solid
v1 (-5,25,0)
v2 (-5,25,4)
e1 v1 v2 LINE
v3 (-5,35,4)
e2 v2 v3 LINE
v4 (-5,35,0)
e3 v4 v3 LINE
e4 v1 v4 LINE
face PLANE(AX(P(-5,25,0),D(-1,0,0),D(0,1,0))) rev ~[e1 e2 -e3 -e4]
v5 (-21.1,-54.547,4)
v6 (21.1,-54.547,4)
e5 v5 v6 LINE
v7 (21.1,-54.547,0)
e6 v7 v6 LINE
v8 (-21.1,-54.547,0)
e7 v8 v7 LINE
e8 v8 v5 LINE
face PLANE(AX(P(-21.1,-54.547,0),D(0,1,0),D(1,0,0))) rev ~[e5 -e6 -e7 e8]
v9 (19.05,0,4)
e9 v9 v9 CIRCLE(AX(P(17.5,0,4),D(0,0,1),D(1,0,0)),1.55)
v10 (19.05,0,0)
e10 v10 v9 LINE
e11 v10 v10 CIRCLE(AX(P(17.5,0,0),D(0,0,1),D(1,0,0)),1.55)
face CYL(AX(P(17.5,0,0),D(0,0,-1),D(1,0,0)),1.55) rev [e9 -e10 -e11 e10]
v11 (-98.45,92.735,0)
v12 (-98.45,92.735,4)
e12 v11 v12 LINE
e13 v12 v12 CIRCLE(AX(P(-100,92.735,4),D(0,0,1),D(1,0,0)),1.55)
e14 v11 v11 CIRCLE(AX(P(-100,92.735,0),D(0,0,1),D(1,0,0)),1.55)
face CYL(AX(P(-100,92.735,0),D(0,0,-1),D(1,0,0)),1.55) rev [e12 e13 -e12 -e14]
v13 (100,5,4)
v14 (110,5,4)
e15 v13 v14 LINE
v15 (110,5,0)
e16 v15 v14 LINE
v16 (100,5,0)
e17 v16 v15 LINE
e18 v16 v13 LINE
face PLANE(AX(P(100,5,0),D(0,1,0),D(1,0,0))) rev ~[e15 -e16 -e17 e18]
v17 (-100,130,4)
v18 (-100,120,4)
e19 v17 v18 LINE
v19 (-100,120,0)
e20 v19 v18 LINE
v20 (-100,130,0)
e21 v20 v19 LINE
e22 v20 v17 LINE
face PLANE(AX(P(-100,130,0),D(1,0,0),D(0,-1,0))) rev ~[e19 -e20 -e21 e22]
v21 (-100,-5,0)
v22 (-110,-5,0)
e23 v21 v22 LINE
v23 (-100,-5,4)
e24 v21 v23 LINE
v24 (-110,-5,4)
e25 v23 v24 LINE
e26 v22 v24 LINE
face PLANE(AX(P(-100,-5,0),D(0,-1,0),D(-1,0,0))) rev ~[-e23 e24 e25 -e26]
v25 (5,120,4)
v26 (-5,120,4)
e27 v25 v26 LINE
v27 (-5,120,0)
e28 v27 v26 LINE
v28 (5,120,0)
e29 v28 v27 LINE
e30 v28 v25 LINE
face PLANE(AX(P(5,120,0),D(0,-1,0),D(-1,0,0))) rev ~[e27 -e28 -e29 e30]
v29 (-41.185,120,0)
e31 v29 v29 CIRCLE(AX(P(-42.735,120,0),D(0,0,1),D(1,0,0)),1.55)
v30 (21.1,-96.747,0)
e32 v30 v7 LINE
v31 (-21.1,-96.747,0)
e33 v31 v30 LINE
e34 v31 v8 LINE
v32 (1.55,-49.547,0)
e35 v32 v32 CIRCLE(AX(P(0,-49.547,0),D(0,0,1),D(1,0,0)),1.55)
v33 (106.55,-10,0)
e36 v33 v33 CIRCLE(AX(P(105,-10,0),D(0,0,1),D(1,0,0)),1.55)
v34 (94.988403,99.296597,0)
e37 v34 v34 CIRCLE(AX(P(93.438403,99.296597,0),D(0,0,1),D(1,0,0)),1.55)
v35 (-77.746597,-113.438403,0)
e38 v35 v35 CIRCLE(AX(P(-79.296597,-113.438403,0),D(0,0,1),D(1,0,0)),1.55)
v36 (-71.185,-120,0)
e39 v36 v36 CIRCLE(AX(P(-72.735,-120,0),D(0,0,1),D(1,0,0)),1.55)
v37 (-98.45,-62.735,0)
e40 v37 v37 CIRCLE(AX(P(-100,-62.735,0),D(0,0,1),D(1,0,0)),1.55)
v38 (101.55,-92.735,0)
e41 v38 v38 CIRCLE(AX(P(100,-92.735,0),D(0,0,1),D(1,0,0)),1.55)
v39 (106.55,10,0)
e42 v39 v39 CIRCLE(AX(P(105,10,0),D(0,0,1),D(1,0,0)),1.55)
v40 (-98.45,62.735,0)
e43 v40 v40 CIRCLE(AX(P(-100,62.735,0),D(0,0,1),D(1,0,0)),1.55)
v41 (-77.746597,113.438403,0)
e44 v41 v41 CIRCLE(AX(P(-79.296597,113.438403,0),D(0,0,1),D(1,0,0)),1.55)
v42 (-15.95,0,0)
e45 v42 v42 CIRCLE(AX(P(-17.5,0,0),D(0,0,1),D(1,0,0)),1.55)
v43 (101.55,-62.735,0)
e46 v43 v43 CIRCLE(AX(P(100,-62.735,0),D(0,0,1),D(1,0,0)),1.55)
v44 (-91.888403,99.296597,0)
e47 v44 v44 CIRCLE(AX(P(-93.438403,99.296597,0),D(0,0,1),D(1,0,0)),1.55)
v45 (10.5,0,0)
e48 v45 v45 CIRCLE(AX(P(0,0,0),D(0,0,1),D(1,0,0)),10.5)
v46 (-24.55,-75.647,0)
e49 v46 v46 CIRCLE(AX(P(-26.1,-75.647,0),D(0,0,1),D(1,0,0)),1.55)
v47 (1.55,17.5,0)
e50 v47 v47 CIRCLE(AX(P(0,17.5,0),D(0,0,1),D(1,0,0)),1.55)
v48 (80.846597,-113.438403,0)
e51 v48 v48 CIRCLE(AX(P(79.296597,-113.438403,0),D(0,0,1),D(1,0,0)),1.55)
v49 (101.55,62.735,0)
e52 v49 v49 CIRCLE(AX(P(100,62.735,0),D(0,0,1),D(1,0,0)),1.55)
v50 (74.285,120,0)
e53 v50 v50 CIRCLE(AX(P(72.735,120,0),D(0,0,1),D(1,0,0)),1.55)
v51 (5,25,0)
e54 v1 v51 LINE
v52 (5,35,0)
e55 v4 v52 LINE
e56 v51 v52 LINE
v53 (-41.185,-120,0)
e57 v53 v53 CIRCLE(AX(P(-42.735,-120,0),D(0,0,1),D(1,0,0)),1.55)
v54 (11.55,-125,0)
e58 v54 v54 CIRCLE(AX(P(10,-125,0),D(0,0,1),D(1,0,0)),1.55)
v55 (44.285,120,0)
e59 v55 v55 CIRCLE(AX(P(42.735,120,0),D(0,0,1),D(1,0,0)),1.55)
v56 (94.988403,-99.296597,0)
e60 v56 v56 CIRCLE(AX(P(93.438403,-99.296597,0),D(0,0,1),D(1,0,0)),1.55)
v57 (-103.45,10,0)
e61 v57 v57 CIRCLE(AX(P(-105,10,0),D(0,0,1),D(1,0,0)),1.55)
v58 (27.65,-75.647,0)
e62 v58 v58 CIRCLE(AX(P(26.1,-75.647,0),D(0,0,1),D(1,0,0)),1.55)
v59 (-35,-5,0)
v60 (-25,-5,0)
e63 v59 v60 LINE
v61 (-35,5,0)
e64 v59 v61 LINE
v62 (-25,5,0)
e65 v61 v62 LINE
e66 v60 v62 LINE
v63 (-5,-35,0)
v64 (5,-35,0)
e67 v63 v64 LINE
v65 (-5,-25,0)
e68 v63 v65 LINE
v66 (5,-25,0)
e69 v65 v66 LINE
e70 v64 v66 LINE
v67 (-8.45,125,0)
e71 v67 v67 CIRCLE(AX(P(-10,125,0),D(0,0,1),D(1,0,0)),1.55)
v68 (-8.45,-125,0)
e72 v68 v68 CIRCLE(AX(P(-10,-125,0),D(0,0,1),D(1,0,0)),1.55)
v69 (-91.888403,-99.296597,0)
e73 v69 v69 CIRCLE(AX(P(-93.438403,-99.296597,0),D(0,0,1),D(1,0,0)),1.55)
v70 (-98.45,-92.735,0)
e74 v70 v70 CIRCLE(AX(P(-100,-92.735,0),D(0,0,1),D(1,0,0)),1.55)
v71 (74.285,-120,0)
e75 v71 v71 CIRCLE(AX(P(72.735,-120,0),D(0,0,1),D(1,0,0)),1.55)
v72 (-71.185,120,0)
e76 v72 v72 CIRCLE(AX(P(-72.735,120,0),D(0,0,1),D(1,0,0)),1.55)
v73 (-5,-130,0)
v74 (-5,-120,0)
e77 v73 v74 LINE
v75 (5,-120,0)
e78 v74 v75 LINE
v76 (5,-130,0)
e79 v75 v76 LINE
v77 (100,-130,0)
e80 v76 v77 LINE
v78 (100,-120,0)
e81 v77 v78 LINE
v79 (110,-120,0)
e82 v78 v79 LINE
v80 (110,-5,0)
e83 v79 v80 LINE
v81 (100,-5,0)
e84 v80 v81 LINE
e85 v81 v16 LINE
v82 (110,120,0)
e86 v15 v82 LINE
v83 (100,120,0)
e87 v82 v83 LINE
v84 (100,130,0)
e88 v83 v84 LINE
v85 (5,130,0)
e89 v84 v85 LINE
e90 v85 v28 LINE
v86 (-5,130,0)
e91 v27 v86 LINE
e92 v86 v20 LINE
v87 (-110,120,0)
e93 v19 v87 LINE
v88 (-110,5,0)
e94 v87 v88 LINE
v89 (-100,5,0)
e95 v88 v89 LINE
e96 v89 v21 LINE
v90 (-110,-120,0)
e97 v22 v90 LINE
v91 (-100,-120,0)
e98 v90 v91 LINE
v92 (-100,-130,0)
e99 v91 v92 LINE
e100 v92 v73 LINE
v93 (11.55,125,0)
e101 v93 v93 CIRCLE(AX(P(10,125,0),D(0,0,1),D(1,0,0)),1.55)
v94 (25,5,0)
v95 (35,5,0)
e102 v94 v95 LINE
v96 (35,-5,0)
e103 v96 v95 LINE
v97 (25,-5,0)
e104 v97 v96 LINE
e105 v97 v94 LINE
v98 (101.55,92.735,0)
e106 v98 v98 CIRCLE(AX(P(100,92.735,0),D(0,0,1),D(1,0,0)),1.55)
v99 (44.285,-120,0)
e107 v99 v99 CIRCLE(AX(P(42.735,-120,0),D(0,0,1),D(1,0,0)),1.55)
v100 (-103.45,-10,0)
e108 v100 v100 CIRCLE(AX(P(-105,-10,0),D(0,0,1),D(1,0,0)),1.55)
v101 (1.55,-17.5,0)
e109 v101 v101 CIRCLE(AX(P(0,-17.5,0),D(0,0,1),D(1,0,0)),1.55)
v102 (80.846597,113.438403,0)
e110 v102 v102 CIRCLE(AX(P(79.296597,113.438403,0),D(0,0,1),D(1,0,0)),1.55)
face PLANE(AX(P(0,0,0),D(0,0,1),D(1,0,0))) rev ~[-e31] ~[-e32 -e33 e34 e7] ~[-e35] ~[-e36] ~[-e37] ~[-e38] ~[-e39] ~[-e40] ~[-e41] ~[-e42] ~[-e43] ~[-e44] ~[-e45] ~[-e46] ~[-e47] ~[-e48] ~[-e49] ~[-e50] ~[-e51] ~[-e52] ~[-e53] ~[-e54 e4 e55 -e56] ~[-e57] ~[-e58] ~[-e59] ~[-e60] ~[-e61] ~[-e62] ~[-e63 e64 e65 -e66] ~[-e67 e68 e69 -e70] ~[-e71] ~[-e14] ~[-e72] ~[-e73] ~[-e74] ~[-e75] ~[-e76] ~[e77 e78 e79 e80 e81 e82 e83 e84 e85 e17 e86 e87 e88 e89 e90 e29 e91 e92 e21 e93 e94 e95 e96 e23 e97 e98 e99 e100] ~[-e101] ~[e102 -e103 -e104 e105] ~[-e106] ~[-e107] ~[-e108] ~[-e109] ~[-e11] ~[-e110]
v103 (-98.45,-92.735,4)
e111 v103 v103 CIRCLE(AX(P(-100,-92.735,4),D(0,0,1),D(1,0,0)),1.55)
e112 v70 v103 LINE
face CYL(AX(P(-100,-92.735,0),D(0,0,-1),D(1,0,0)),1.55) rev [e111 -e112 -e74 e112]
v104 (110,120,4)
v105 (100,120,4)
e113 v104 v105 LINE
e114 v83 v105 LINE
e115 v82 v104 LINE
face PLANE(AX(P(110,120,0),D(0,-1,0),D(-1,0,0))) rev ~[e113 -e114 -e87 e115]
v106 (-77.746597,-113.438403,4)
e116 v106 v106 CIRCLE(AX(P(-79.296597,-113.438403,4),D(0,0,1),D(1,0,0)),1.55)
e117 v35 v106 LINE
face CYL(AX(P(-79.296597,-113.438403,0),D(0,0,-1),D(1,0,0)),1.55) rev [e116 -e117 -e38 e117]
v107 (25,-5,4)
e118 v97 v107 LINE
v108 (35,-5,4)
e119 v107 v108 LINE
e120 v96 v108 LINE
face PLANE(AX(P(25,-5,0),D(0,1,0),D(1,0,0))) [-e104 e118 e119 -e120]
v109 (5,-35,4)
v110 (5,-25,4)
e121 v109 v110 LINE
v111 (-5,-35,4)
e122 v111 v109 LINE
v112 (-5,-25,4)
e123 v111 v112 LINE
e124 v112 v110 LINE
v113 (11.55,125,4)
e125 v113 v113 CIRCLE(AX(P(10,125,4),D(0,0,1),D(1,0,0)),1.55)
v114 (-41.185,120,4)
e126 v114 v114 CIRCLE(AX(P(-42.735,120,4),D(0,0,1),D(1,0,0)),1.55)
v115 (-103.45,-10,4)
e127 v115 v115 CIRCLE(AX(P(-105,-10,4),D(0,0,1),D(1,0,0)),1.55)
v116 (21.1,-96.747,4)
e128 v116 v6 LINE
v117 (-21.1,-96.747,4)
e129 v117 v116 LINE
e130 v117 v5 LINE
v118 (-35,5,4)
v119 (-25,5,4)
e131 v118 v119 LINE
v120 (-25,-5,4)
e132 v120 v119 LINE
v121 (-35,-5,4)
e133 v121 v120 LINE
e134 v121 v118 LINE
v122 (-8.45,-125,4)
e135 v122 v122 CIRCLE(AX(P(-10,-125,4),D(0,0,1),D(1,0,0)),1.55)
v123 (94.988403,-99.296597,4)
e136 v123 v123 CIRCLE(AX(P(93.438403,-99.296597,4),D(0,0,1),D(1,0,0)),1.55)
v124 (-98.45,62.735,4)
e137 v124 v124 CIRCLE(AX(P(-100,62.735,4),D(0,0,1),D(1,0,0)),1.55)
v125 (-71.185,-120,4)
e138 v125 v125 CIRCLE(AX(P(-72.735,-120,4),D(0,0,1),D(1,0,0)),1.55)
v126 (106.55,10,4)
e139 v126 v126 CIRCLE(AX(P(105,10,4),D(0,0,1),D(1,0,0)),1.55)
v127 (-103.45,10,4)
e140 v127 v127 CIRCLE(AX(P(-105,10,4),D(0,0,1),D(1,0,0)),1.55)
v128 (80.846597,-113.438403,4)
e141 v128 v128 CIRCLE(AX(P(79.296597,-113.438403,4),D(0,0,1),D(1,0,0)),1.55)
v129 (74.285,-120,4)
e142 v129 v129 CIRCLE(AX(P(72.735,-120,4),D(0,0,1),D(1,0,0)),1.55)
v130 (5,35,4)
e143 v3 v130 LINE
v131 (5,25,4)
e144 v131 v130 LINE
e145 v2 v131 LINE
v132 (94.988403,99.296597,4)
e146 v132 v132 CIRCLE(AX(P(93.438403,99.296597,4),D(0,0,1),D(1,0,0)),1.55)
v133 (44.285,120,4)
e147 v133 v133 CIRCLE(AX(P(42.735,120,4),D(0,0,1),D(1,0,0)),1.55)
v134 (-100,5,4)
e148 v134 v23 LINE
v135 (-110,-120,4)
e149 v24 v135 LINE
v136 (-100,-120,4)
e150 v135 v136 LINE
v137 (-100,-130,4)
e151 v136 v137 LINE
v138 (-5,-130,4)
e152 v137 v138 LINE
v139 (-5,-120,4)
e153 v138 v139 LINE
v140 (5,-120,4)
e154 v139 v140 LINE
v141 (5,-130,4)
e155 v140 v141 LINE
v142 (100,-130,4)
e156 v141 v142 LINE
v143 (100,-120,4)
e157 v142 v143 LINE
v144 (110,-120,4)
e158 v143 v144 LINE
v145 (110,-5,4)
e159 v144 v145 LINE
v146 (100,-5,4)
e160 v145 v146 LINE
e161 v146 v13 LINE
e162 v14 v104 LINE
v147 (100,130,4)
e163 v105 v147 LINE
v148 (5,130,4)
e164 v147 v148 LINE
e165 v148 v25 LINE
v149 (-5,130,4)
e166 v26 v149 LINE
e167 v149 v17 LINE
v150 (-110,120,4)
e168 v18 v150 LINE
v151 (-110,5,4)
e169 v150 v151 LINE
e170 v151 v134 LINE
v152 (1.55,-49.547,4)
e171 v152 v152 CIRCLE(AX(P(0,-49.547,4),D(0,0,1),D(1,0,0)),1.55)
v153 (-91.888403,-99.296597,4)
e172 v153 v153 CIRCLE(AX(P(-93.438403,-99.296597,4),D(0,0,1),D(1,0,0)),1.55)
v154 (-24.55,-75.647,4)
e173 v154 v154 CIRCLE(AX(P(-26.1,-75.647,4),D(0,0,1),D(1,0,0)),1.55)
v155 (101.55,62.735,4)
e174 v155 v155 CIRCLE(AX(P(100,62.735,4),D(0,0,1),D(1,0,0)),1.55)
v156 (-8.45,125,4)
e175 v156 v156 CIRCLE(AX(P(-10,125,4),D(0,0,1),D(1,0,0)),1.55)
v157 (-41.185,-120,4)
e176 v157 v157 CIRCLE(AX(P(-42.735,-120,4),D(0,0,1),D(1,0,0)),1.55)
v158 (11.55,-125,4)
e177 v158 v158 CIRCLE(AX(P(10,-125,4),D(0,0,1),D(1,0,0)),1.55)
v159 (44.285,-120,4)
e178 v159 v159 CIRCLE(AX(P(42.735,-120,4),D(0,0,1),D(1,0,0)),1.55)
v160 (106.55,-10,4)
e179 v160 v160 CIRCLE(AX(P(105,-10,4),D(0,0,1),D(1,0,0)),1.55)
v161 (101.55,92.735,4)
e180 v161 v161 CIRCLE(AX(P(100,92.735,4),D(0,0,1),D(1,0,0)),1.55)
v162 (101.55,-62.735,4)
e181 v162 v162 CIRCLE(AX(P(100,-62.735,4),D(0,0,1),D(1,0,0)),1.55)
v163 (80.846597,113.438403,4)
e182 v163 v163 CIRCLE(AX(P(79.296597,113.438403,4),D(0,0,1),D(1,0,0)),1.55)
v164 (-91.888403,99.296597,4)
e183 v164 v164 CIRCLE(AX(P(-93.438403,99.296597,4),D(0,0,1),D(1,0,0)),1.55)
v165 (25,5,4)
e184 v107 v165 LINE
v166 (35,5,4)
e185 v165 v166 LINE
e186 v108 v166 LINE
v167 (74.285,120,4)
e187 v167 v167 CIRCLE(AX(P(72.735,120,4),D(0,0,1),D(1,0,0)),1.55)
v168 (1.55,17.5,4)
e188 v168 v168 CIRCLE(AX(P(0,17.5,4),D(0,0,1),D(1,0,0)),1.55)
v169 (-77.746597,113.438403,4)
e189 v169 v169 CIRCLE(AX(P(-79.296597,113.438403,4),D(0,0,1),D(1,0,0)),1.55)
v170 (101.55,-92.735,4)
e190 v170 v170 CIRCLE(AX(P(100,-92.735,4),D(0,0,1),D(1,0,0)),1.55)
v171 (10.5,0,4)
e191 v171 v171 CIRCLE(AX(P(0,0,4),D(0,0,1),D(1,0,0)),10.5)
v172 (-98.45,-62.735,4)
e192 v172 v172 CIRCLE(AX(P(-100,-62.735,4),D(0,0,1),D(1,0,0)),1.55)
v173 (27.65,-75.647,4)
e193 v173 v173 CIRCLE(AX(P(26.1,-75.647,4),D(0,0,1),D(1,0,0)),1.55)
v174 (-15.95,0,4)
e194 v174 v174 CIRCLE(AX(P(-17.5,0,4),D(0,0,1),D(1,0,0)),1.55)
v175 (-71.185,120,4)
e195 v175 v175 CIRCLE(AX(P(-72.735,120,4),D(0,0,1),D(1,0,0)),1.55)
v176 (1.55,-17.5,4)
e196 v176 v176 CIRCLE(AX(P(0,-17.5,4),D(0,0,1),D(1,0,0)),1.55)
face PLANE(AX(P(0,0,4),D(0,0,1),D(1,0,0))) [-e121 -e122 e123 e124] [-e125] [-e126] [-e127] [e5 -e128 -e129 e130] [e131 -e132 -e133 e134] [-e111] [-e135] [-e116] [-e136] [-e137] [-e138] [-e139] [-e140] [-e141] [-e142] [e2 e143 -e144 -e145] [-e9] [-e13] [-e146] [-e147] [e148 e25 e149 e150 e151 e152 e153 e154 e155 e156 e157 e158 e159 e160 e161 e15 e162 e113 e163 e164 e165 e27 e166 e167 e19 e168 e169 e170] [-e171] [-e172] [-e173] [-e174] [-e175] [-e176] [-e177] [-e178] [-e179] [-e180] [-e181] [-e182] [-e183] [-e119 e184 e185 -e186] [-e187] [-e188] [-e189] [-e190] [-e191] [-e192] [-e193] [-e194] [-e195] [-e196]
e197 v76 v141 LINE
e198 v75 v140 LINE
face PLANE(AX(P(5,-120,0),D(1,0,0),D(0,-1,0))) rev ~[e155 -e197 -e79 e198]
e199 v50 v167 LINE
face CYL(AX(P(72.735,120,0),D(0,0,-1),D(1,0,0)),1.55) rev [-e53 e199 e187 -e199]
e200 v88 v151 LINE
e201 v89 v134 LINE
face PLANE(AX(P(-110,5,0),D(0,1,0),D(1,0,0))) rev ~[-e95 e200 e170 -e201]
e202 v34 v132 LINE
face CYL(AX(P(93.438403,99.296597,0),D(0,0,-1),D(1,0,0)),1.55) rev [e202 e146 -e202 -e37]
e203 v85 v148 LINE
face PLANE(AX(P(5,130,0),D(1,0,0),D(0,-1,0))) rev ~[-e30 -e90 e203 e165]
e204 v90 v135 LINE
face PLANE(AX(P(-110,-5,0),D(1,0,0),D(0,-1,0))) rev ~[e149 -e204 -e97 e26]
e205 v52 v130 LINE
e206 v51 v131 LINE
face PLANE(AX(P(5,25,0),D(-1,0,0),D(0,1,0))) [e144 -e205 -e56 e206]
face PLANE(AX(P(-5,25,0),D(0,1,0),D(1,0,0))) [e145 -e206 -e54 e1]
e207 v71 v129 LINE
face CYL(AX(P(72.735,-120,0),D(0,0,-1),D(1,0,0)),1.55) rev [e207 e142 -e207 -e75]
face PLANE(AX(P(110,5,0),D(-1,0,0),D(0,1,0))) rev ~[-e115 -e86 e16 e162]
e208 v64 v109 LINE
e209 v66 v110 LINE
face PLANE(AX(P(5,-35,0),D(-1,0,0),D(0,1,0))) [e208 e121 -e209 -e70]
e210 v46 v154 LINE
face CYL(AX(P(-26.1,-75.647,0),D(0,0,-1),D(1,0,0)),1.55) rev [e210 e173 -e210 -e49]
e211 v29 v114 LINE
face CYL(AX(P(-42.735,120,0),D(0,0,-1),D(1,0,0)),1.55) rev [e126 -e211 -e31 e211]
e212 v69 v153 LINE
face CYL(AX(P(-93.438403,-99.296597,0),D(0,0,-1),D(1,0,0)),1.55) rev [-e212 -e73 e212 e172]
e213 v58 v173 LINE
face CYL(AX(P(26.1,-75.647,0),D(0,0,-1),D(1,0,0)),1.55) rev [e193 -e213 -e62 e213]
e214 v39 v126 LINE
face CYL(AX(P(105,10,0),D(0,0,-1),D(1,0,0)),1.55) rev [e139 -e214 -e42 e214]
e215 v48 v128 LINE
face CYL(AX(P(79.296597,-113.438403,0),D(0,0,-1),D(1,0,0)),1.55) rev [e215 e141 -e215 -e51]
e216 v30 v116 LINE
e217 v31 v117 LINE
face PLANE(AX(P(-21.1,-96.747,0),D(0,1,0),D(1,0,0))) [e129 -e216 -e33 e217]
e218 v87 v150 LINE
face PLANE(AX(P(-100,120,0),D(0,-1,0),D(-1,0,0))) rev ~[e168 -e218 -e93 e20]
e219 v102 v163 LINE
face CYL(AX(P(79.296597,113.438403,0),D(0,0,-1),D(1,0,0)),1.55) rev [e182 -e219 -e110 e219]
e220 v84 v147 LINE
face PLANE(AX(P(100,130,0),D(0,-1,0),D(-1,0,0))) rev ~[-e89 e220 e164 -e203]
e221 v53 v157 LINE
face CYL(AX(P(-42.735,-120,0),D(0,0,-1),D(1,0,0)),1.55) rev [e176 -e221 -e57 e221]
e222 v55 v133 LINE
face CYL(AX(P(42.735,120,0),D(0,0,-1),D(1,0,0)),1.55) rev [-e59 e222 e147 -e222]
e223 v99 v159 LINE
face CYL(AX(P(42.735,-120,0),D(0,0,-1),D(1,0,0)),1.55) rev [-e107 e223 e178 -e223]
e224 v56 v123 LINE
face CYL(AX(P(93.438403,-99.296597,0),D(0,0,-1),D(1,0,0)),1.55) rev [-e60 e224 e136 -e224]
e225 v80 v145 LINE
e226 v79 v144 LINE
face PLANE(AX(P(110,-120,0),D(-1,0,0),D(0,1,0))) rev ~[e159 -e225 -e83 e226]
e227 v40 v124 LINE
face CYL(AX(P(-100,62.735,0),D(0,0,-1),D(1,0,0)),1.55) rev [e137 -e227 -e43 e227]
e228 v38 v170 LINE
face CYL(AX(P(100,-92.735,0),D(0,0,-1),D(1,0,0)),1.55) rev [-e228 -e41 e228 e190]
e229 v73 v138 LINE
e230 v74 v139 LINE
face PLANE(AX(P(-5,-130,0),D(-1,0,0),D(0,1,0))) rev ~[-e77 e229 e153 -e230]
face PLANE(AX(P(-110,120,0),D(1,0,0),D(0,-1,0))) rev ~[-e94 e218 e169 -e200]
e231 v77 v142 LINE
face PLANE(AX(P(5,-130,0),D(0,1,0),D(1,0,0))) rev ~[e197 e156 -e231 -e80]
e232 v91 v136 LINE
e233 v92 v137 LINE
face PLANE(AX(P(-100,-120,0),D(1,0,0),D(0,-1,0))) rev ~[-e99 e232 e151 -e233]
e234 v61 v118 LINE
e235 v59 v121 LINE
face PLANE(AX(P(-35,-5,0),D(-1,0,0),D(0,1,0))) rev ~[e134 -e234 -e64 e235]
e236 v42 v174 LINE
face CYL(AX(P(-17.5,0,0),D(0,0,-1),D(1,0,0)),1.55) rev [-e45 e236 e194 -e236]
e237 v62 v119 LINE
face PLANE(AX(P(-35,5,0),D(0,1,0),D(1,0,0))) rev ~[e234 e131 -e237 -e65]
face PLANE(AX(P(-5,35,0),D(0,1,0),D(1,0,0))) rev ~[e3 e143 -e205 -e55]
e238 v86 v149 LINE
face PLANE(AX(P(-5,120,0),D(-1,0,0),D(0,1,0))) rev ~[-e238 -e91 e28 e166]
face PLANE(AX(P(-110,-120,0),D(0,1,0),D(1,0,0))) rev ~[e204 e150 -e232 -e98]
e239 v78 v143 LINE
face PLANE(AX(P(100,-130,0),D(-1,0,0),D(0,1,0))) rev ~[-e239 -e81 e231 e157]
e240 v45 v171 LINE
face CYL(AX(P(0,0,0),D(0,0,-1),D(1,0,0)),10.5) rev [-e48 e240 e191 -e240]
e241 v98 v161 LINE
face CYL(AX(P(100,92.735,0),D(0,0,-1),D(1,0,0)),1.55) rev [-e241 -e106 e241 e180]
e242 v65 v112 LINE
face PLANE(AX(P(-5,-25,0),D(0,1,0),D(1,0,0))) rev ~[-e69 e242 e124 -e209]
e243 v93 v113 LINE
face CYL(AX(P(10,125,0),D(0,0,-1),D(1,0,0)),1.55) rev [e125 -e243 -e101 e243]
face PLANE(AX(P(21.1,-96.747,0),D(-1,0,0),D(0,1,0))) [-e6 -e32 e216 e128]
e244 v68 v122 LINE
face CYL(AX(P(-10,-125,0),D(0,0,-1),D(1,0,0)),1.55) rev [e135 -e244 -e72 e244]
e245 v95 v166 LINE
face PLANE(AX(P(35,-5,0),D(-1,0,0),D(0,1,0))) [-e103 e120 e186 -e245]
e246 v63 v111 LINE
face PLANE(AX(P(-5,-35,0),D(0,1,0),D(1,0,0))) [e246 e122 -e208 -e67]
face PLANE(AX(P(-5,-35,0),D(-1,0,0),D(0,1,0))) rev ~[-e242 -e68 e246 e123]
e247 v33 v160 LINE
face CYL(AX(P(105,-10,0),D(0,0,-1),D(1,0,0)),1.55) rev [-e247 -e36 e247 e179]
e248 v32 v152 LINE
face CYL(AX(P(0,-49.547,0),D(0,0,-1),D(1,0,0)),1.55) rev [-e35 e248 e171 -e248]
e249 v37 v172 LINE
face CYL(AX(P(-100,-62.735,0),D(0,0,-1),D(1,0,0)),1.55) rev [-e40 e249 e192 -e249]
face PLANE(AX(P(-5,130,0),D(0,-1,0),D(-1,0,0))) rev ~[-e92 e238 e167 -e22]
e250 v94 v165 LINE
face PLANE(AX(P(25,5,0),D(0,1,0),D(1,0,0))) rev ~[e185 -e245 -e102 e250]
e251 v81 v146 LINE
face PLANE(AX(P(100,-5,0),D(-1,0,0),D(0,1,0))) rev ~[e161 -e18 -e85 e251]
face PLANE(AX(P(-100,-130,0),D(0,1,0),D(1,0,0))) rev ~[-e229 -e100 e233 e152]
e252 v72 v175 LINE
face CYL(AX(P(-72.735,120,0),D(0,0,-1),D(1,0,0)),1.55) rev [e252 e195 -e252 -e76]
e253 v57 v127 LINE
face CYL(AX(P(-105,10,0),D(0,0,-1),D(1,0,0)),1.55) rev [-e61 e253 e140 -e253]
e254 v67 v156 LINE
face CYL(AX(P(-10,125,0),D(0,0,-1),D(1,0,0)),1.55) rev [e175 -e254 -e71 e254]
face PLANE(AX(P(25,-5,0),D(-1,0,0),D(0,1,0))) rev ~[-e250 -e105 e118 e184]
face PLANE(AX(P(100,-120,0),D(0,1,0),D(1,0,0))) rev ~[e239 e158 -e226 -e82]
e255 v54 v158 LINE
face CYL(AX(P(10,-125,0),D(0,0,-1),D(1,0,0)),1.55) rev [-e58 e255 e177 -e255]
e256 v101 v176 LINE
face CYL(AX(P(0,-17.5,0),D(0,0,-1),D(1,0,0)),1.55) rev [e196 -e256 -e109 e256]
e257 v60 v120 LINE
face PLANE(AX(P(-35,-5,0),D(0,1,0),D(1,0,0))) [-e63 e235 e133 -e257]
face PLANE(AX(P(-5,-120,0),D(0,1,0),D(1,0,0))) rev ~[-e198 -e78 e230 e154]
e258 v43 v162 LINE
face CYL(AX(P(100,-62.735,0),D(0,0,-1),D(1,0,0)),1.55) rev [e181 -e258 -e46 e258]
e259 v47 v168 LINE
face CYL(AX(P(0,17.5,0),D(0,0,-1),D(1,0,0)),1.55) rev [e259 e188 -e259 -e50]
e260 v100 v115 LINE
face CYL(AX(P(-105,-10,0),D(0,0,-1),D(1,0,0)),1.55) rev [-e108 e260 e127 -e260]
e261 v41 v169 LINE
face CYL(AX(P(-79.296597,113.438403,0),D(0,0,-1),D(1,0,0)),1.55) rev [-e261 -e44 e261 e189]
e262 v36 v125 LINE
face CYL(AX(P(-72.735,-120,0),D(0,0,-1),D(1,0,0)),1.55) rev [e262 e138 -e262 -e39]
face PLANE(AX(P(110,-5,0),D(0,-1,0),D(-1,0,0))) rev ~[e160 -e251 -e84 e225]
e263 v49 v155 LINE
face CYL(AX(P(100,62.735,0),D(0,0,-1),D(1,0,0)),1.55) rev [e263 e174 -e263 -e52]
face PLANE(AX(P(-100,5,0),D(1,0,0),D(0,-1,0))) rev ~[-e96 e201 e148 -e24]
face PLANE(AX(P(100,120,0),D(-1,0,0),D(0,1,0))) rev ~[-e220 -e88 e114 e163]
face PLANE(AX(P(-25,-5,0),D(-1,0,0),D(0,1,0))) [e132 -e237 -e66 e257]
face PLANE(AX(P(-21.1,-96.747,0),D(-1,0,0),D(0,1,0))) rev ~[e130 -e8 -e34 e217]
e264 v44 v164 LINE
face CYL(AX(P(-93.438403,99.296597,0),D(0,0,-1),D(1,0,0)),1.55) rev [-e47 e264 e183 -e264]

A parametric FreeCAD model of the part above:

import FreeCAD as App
import Part
import Sketcher
from FreeCAD import Vector

doc = App.newDocument("Part")
body = doc.addObject("PartDesign::Body", "Body")

# Sketch on XY plane
sketch1 = doc.addObject("Sketcher::SketchObject", "Sketch")
body.addObject(sketch1)
sketch1.AttachmentSupport = (doc.XY_Plane, [""])
sketch1.MapMode = "FlatFace"
sketch1.addGeometry(Part.LineSegment(Vector(-100, 120, 0), Vector(-110, 120, 0)), False)
sketch1.addGeometry(Part.LineSegment(Vector(-110, 120, 0), Vector(-110, 5, 0)), False)
sketch1.addGeometry(Part.LineSegment(Vector(-110, 5, 0), Vector(-100, 5, 0)), False)
sketch1.addGeometry(Part.LineSegment(Vector(-100, 5, 0), Vector(-100, -5, 0)), False)
sketch1.addGeometry(Part.LineSegment(Vector(-100, -5, 0), Vector(-110, -5, 0)), False)
sketch1.addGeometry(Part.LineSegment(Vector(-110, -5, 0), Vector(-110, -120, 0)), False)
sketch1.addGeometry(Part.LineSegment(Vector(-110, -120, 0), Vector(-100, -120, 0)), False)
sketch1.addGeometry(Part.LineSegment(Vector(-100, -120, 0), Vector(-100, -130, 0)), False)
sketch1.addGeometry(Part.LineSegment(Vector(-100, -130, 0), Vector(-5, -130, 0)), False)
sketch1.addGeometry(Part.LineSegment(Vector(-5, -130, 0), Vector(-5, -120, 0)), False)
sketch1.addGeometry(Part.LineSegment(Vector(-5, -120, 0), Vector(5, -120, 0)), False)
sketch1.addGeometry(Part.LineSegment(Vector(5, -120, 0), Vector(5, -130, 0)), False)
sketch1.addGeometry(Part.LineSegment(Vector(5, -130, 0), Vector(100, -130, 0)), False)
sketch1.addGeometry(Part.LineSegment(Vector(100, -130, 0), Vector(100, -120, 0)), False)
sketch1.addGeometry(Part.LineSegment(Vector(100, -120, 0), Vector(110, -120, 0)), False)
sketch1.addGeometry(Part.LineSegment(Vector(110, -120, 0), Vector(110, -5, 0)), False)
sketch1.addGeometry(Part.LineSegment(Vector(110, -5, 0), Vector(100, -5, 0)), False)
sketch1.addGeometry(Part.LineSegment(Vector(100, -5, 0), Vector(100, 5, 0)), False)
sketch1.addGeometry(Part.LineSegment(Vector(100, 5, 0), Vector(110, 5, 0)), False)
sketch1.addGeometry(Part.LineSegment(Vector(110, 5, 0), Vector(110, 120, 0)), False)
sketch1.addGeometry(Part.LineSegment(Vector(110, 120, 0), Vector(100, 120, 0)), False)
sketch1.addGeometry(Part.LineSegment(Vector(100, 120, 0), Vector(100, 130, 0)), False)
sketch1.addGeometry(Part.LineSegment(Vector(100, 130, 0), Vector(5, 130, 0)), False)
sketch1.addGeometry(Part.LineSegment(Vector(5, 130, 0), Vector(5, 120, 0)), False)
sketch1.addGeometry(Part.LineSegment(Vector(5, 120, 0), Vector(-5, 120, 0)), False)
sketch1.addGeometry(Part.LineSegment(Vector(-5, 120, 0), Vector(-5, 130, 0)), False)
sketch1.addGeometry(Part.LineSegment(Vector(-5, 130, 0), Vector(-100, 130, 0)), False)
sketch1.addGeometry(Part.LineSegment(Vector(-100, 130, 0), Vector(-100, 120, 0)), False)
sketch1.addGeometry(Part.Circle(Vector(-93.4, -99.3, 0), Vector(0, 0, 1), 1.6), False)
sketch1.addGeometry(Part.Circle(Vector(-72.7, -120, 0), Vector(0, 0, 1), 1.6), False)
sketch1.addGeometry(Part.Circle(Vector(-79.3, -113.4, 0), Vector(0, 0, 1), 1.6), False)
sketch1.addGeometry(Part.Circle(Vector(-100, -92.7, 0), Vector(0, 0, 1), 1.6), False)
sketch1.addGeometry(Part.Circle(Vector(-42.7, -120, 0), Vector(0, 0, 1), 1.6), False)
sketch1.addGeometry(Part.Circle(Vector(-10, -125, 0), Vector(0, 0, 1), 1.6), False)
sketch1.addGeometry(Part.Circle(Vector(-26.1, -75.6, 0), Vector(0, 0, 1), 1.6), False)
sketch1.addGeometry(Part.Circle(Vector(-100, -62.7, 0), Vector(0, 0, 1), 1.6), False)
sketch1.addGeometry(Part.Circle(Vector(-105, -10, 0), Vector(0, 0, 1), 1.6), False)
sketch1.addGeometry(Part.Circle(Vector(10, -125, 0), Vector(0, 0, 1), 1.6), False)
sketch1.addGeometry(Part.Circle(Vector(42.7, -120, 0), Vector(0, 0, 1), 1.6), False)
sketch1.addGeometry(Part.LineSegment(Vector(21.1, -96.7, 0), Vector(-21.1, -96.7, 0)), False)
sketch1.addGeometry(Part.LineSegment(Vector(-21.1, -96.7, 0), Vector(-21.1, -54.5, 0)), False)
sketch1.addGeometry(Part.LineSegment(Vector(-21.1, -54.5, 0), Vector(21.1, -54.5, 0)), False)
sketch1.addGeometry(Part.LineSegment(Vector(21.1, -54.5, 0), Vector(21.1, -96.7, 0)), False)
sketch1.addGeometry(Part.Circle(Vector(26.1, -75.6, 0), Vector(0, 0, 1), 1.6), False)
sketch1.addGeometry(Part.Circle(Vector(72.7, -120, 0), Vector(0, 0, 1), 1.6), False)
sketch1.addGeometry(Part.Circle(Vector(79.3, -113.4, 0), Vector(0, 0, 1), 1.6), False)
sketch1.addGeometry(Part.Circle(Vector(93.4, -99.3, 0), Vector(0, 0, 1), 1.6), False)
sketch1.addGeometry(Part.Circle(Vector(100, -92.7, 0), Vector(0, 0, 1), 1.6), False)
sketch1.addGeometry(Part.Circle(Vector(0, -49.5, 0), Vector(0, 0, 1), 1.6), False)
sketch1.addGeometry(Part.LineSegment(Vector(5, -35, 0), Vector(-5, -35, 0)), False)
sketch1.addGeometry(Part.LineSegment(Vector(-5, -35, 0), Vector(-5, -25, 0)), False)
sketch1.addGeometry(Part.LineSegment(Vector(-5, -25, 0), Vector(5, -25, 0)), False)
sketch1.addGeometry(Part.LineSegment(Vector(5, -25, 0), Vector(5, -35, 0)), False)
sketch1.addGeometry(Part.Circle(Vector(0, -17.5, 0), Vector(0, 0, 1), 1.6), False)
sketch1.addGeometry(Part.Circle(Vector(100, -62.7, 0), Vector(0, 0, 1), 1.6), False)
sketch1.addGeometry(Part.Circle(Vector(105, -10, 0), Vector(0, 0, 1), 1.6), False)
sketch1.addGeometry(Part.Circle(Vector(-105, 10, 0), Vector(0, 0, 1), 1.6), False)
sketch1.addGeometry(Part.Circle(Vector(-100, 62.7, 0), Vector(0, 0, 1), 1.6), False)
sketch1.addGeometry(Part.LineSegment(Vector(-25, -5, 0), Vector(-35, -5, 0)), False)
sketch1.addGeometry(Part.LineSegment(Vector(-35, -5, 0), Vector(-35, 5, 0)), False)
sketch1.addGeometry(Part.LineSegment(Vector(-35, 5, 0), Vector(-25, 5, 0)), False)
sketch1.addGeometry(Part.LineSegment(Vector(-25, 5, 0), Vector(-25, -5, 0)), False)
sketch1.addGeometry(Part.Circle(Vector(-17.5, 0, 0), Vector(0, 0, 1), 1.6), False)
sketch1.addGeometry(Part.Circle(Vector(-100, 92.7, 0), Vector(0, 0, 1), 1.6), False)
sketch1.addGeometry(Part.Circle(Vector(-93.4, 99.3, 0), Vector(0, 0, 1), 1.6), False)
sketch1.addGeometry(Part.Circle(Vector(-79.3, 113.4, 0), Vector(0, 0, 1), 1.6), False)
sketch1.addGeometry(Part.Circle(Vector(-72.7, 120, 0), Vector(0, 0, 1), 1.6), False)
sketch1.addGeometry(Part.Circle(Vector(-42.7, 120, 0), Vector(0, 0, 1), 1.6), False)
sketch1.addGeometry(Part.Circle(Vector(-10, 125, 0), Vector(0, 0, 1), 1.6), False)
sketch1.addGeometry(Part.Circle(Vector(0, 0, 0), Vector(0, 0, 1), 10.5), False)
sketch1.addGeometry(Part.Circle(Vector(17.5, 0, 0), Vector(0, 0, 1), 1.6), False)
sketch1.addGeometry(Part.Circle(Vector(0, 17.5, 0), Vector(0, 0, 1), 1.6), False)
sketch1.addGeometry(Part.LineSegment(Vector(5, 25, 0), Vector(-5, 25, 0)), False)
sketch1.addGeometry(Part.LineSegment(Vector(-5, 25, 0), Vector(-5, 35, 0)), False)
sketch1.addGeometry(Part.LineSegment(Vector(-5, 35, 0), Vector(5, 35, 0)), False)
sketch1.addGeometry(Part.LineSegment(Vector(5, 35, 0), Vector(5, 25, 0)), False)
sketch1.addGeometry(Part.LineSegment(Vector(35, -5, 0), Vector(25, -5, 0)), False)
sketch1.addGeometry(Part.LineSegment(Vector(25, -5, 0), Vector(25, 5, 0)), False)
sketch1.addGeometry(Part.LineSegment(Vector(25, 5, 0), Vector(35, 5, 0)), False)
sketch1.addGeometry(Part.LineSegment(Vector(35, 5, 0), Vector(35, -5, 0)), False)
sketch1.addGeometry(Part.Circle(Vector(105, 10, 0), Vector(0, 0, 1), 1.6), False)
sketch1.addGeometry(Part.Circle(Vector(100, 62.7, 0), Vector(0, 0, 1), 1.6), False)
sketch1.addGeometry(Part.Circle(Vector(10, 125, 0), Vector(0, 0, 1), 1.6), False)
sketch1.addGeometry(Part.Circle(Vector(42.7, 120, 0), Vector(0, 0, 1), 1.6), False)
sketch1.addGeometry(Part.Circle(Vector(100, 92.7, 0), Vector(0, 0, 1), 1.6), False)
sketch1.addGeometry(Part.Circle(Vector(79.3, 113.4, 0), Vector(0, 0, 1), 1.6), False)
sketch1.addGeometry(Part.Circle(Vector(72.7, 120, 0), Vector(0, 0, 1), 1.6), False)
sketch1.addGeometry(Part.Circle(Vector(93.4, 99.3, 0), Vector(0, 0, 1), 1.6), False)
sketch1.addConstraint(Sketcher.Constraint("Coincident", 0, 2, 1, 1))
sketch1.addConstraint(Sketcher.Constraint("Coincident", 1, 2, 2, 1))
sketch1.addConstraint(Sketcher.Constraint("Coincident", 2, 2, 3, 1))
sketch1.addConstraint(Sketcher.Constraint("Coincident", 3, 2, 4, 1))
sketch1.addConstraint(Sketcher.Constraint("Coincident", 4, 2, 5, 1))
sketch1.addConstraint(Sketcher.Constraint("Coincident", 5, 2, 6, 1))
sketch1.addConstraint(Sketcher.Constraint("Coincident", 6, 2, 7, 1))
sketch1.addConstraint(Sketcher.Constraint("Coincident", 7, 2, 8, 1))
sketch1.addConstraint(Sketcher.Constraint("Coincident", 8, 2, 9, 1))
sketch1.addConstraint(Sketcher.Constraint("Coincident", 9, 2, 10, 1))
sketch1.addConstraint(Sketcher.Constraint("Coincident", 10, 2, 11, 1))
sketch1.addConstraint(Sketcher.Constraint("Coincident", 11, 2, 12, 1))
sketch1.addConstraint(Sketcher.Constraint("Coincident", 12, 2, 13, 1))
sketch1.addConstraint(Sketcher.Constraint("Coincident", 13, 2, 14, 1))
sketch1.addConstraint(Sketcher.Constraint("Coincident", 14, 2, 15, 1))
sketch1.addConstraint(Sketcher.Constraint("Coincident", 15, 2, 16, 1))
sketch1.addConstraint(Sketcher.Constraint("Coincident", 16, 2, 17, 1))
sketch1.addConstraint(Sketcher.Constraint("Coincident", 17, 2, 18, 1))
sketch1.addConstraint(Sketcher.Constraint("Coincident", 18, 2, 19, 1))
sketch1.addConstraint(Sketcher.Constraint("Coincident", 19, 2, 20, 1))
sketch1.addConstraint(Sketcher.Constraint("Coincident", 20, 2, 21, 1))
sketch1.addConstraint(Sketcher.Constraint("Coincident", 21, 2, 22, 1))
sketch1.addConstraint(Sketcher.Constraint("Coincident", 22, 2, 23, 1))
sketch1.addConstraint(Sketcher.Constraint("Coincident", 23, 2, 24, 1))
sketch1.addConstraint(Sketcher.Constraint("Coincident", 24, 2, 25, 1))
sketch1.addConstraint(Sketcher.Constraint("Coincident", 25, 2, 26, 1))
sketch1.addConstraint(Sketcher.Constraint("Coincident", 26, 2, 27, 1))
sketch1.addConstraint(Sketcher.Constraint("Coincident", 27, 2, 0, 1))
sketch1.addConstraint(Sketcher.Constraint("Coincident", 39, 2, 40, 1))
sketch1.addConstraint(Sketcher.Constraint("Coincident", 40, 2, 41, 1))
sketch1.addConstraint(Sketcher.Constraint("Coincident", 41, 2, 42, 1))
sketch1.addConstraint(Sketcher.Constraint("Coincident", 42, 2, 39, 1))
sketch1.addConstraint(Sketcher.Constraint("Coincident", 49, 2, 50, 1))
sketch1.addConstraint(Sketcher.Constraint("Coincident", 50, 2, 51, 1))
sketch1.addConstraint(Sketcher.Constraint("Coincident", 51, 2, 52, 1))
sketch1.addConstraint(Sketcher.Constraint("Coincident", 52, 2, 49, 1))
sketch1.addConstraint(Sketcher.Constraint("Coincident", 58, 2, 59, 1))
sketch1.addConstraint(Sketcher.Constraint("Coincident", 59, 2, 60, 1))
sketch1.addConstraint(Sketcher.Constraint("Coincident", 60, 2, 61, 1))
sketch1.addConstraint(Sketcher.Constraint("Coincident", 61, 2, 58, 1))
sketch1.addConstraint(Sketcher.Constraint("Coincident", 72, 2, 73, 1))
sketch1.addConstraint(Sketcher.Constraint("Coincident", 73, 2, 74, 1))
sketch1.addConstraint(Sketcher.Constraint("Coincident", 74, 2, 75, 1))
sketch1.addConstraint(Sketcher.Constraint("Coincident", 75, 2, 72, 1))
sketch1.addConstraint(Sketcher.Constraint("Coincident", 76, 2, 77, 1))
sketch1.addConstraint(Sketcher.Constraint("Coincident", 77, 2, 78, 1))
sketch1.addConstraint(Sketcher.Constraint("Coincident", 78, 2, 79, 1))
sketch1.addConstraint(Sketcher.Constraint("Coincident", 79, 2, 76, 1))
sketch1.addConstraint(Sketcher.Constraint("Horizontal", 0))
sketch1.addConstraint(Sketcher.Constraint("Vertical", 1))
sketch1.addConstraint(Sketcher.Constraint("Horizontal", 2))
sketch1.addConstraint(Sketcher.Constraint("Vertical", 3))
sketch1.addConstraint(Sketcher.Constraint("Horizontal", 4))
sketch1.addConstraint(Sketcher.Constraint("Vertical", 5))
sketch1.addConstraint(Sketcher.Constraint("Horizontal", 6))
sketch1.addConstraint(Sketcher.Constraint("Vertical", 7))
sketch1.addConstraint(Sketcher.Constraint("Horizontal", 8))
sketch1.addConstraint(Sketcher.Constraint("Vertical", 9))
sketch1.addConstraint(Sketcher.Constraint("Horizontal", 10))
sketch1.addConstraint(Sketcher.Constraint("Vertical", 11))
sketch1.addConstraint(Sketcher.Constraint("Horizontal", 12))
sketch1.addConstraint(Sketcher.Constraint("Vertical", 13))
sketch1.addConstraint(Sketcher.Constraint("Horizontal", 14))
sketch1.addConstraint(Sketcher.Constraint("Vertical", 15))
sketch1.addConstraint(Sketcher.Constraint("Horizontal", 16))
sketch1.addConstraint(Sketcher.Constraint("Vertical", 17))
sketch1.addConstraint(Sketcher.Constraint("Horizontal", 18))
sketch1.addConstraint(Sketcher.Constraint("Vertical", 19))
sketch1.addConstraint(Sketcher.Constraint("Horizontal", 20))
sketch1.addConstraint(Sketcher.Constraint("Vertical", 21))
sketch1.addConstraint(Sketcher.Constraint("Horizontal", 22))
sketch1.addConstraint(Sketcher.Constraint("Vertical", 23))
sketch1.addConstraint(Sketcher.Constraint("Horizontal", 24))
sketch1.addConstraint(Sketcher.Constraint("Vertical", 25))
sketch1.addConstraint(Sketcher.Constraint("Horizontal", 26))
sketch1.addConstraint(Sketcher.Constraint("Vertical", 27))
sketch1.addConstraint(Sketcher.Constraint("Horizontal", 39))
sketch1.addConstraint(Sketcher.Constraint("Vertical", 40))
sketch1.addConstraint(Sketcher.Constraint("Horizontal", 41))
sketch1.addConstraint(Sketcher.Constraint("Vertical", 42))
sketch1.addConstraint(Sketcher.Constraint("Horizontal", 49))
sketch1.addConstraint(Sketcher.Constraint("Vertical", 50))
sketch1.addConstraint(Sketcher.Constraint("Horizontal", 51))
sketch1.addConstraint(Sketcher.Constraint("Vertical", 52))
sketch1.addConstraint(Sketcher.Constraint("Horizontal", 58))
sketch1.addConstraint(Sketcher.Constraint("Vertical", 59))
sketch1.addConstraint(Sketcher.Constraint("Horizontal", 60))
sketch1.addConstraint(Sketcher.Constraint("Vertical", 61))
sketch1.addConstraint(Sketcher.Constraint("Horizontal", 72))
sketch1.addConstraint(Sketcher.Constraint("Vertical", 73))
sketch1.addConstraint(Sketcher.Constraint("Horizontal", 74))
sketch1.addConstraint(Sketcher.Constraint("Vertical", 75))
sketch1.addConstraint(Sketcher.Constraint("Horizontal", 76))
sketch1.addConstraint(Sketcher.Constraint("Vertical", 77))
sketch1.addConstraint(Sketcher.Constraint("Horizontal", 78))
sketch1.addConstraint(Sketcher.Constraint("Vertical", 79))
sketch1.addConstraint(Sketcher.Constraint("Coincident", 69, 3, -1, 1))
sketch1.addConstraint(Sketcher.Constraint("Equal", 28, 29))
sketch1.addConstraint(Sketcher.Constraint("Equal", 29, 30))
sketch1.addConstraint(Sketcher.Constraint("Equal", 30, 31))
sketch1.addConstraint(Sketcher.Constraint("Equal", 31, 32))
sketch1.addConstraint(Sketcher.Constraint("Equal", 32, 33))
sketch1.addConstraint(Sketcher.Constraint("Equal", 33, 34))
sketch1.addConstraint(Sketcher.Constraint("Equal", 34, 35))
sketch1.addConstraint(Sketcher.Constraint("Equal", 35, 36))
sketch1.addConstraint(Sketcher.Constraint("Equal", 36, 37))
sketch1.addConstraint(Sketcher.Constraint("Equal", 37, 38))
sketch1.addConstraint(Sketcher.Constraint("Equal", 38, 43))
sketch1.addConstraint(Sketcher.Constraint("Equal", 43, 44))
sketch1.addConstraint(Sketcher.Constraint("Equal", 44, 45))
sketch1.addConstraint(Sketcher.Constraint("Equal", 45, 46))
sketch1.addConstraint(Sketcher.Constraint("Equal", 46, 47))
sketch1.addConstraint(Sketcher.Constraint("Equal", 47, 48))
sketch1.addConstraint(Sketcher.Constraint("Equal", 48, 53))
sketch1.addConstraint(Sketcher.Constraint("Equal", 53, 54))
sketch1.addConstraint(Sketcher.Constraint("Equal", 54, 55))
sketch1.addConstraint(Sketcher.Constraint("Equal", 55, 56))
sketch1.addConstraint(Sketcher.Constraint("Equal", 56, 57))
sketch1.addConstraint(Sketcher.Constraint("Equal", 57, 62))
sketch1.addConstraint(Sketcher.Constraint("Equal", 62, 63))
sketch1.addConstraint(Sketcher.Constraint("Equal", 63, 64))
sketch1.addConstraint(Sketcher.Constraint("Equal", 64, 65))
sketch1.addConstraint(Sketcher.Constraint("Equal", 65, 66))
sketch1.addConstraint(Sketcher.Constraint("Equal", 66, 67))
sketch1.addConstraint(Sketcher.Constraint("Equal", 67, 68))
sketch1.addConstraint(Sketcher.Constraint("Equal", 68, 70))
sketch1.addConstraint(Sketcher.Constraint("Equal", 70, 71))
sketch1.addConstraint(Sketcher.Constraint("Equal", 71, 80))
sketch1.addConstraint(Sketcher.Constraint("Equal", 80, 81))
sketch1.addConstraint(Sketcher.Constraint("Equal", 81, 82))
sketch1.addConstraint(Sketcher.Constraint("Equal", 82, 83))
sketch1.addConstraint(Sketcher.Constraint("Equal", 83, 84))
sketch1.addConstraint(Sketcher.Constraint("Equal", 84, 85))
sketch1.addConstraint(Sketcher.Constraint("Equal", 85, 86))
sketch1.addConstraint(Sketcher.Constraint("Equal", 86, 87))
sketch1.addConstraint(Sketcher.Constraint("Symmetric", 55, 3, 56, 3, -1, 1))
sketch1.addConstraint(Sketcher.Constraint("Symmetric", 54, 3, 57, 3, -1, 1))
sketch1.addConstraint(Sketcher.Constraint("Symmetric", 47, 3, 63, 3, -1, 1))
sketch1.addConstraint(Sketcher.Constraint("Symmetric", 46, 3, 64, 3, -1, 1))
sketch1.addConstraint(Sketcher.Constraint("Symmetric", 45, 3, 65, 3, -1, 1))
sketch1.addConstraint(Sketcher.Constraint("Symmetric", 44, 3, 66, 3, -1, 1))
sketch1.addConstraint(Sketcher.Constraint("Symmetric", 38, 3, 67, 3, -1, 1))
sketch1.addConstraint(Sketcher.Constraint("Symmetric", 37, 3, 68, 3, -1, 1))
sketch1.addConstraint(Sketcher.Constraint("Symmetric", 62, 3, 70, 3, -1, 1))
sketch1.addConstraint(Sketcher.Constraint("Symmetric", 53, 3, 71, 3, -1, 1))
sketch1.addConstraint(Sketcher.Constraint("Symmetric", 36, 3, 80, 3, -1, 1))
sketch1.addConstraint(Sketcher.Constraint("Symmetric", 35, 3, 81, 3, -1, 1))
sketch1.addConstraint(Sketcher.Constraint("Symmetric", 33, 3, 82, 3, -1, 1))
sketch1.addConstraint(Sketcher.Constraint("Symmetric", 32, 3, 83, 3, -1, 1))
sketch1.addConstraint(Sketcher.Constraint("Symmetric", 31, 3, 84, 3, -1, 1))
sketch1.addConstraint(Sketcher.Constraint("Symmetric", 30, 3, 85, 3, -1, 1))
sketch1.addConstraint(Sketcher.Constraint("Symmetric", 29, 3, 86, 3, -1, 1))
sketch1.addConstraint(Sketcher.Constraint("Symmetric", 28, 3, 87, 3, -1, 1))
sketch1.addConstraint(Sketcher.Constraint("Symmetric", 0, 2, 14, 2, -1, 1))
sketch1.addConstraint(Sketcher.Constraint("Symmetric", 2, 2, 16, 2, -1, 1))
sketch1.addConstraint(Sketcher.Constraint("Symmetric", 4, 2, 18, 2, -1, 1))
sketch1.addConstraint(Sketcher.Constraint("Symmetric", 6, 2, 20, 2, -1, 1))
sketch1.addConstraint(Sketcher.Constraint("Symmetric", 8, 2, 22, 2, -1, 1))
sketch1.addConstraint(Sketcher.Constraint("Symmetric", 10, 2, 24, 2, -1, 1))
sketch1.addConstraint(Sketcher.Constraint("Symmetric", 12, 2, 26, 2, -1, 1))
sketch1.addConstraint(Sketcher.Constraint("Symmetric", 51, 2, 72, 2, -1, 1))
sketch1.addConstraint(Sketcher.Constraint("Symmetric", 49, 2, 74, 2, -1, 1))
sketch1.addConstraint(Sketcher.Constraint("Symmetric", 60, 2, 76, 2, -1, 1))
sketch1.addConstraint(Sketcher.Constraint("Symmetric", 58, 2, 78, 2, -1, 1))
sketch1.addConstraint(Sketcher.Constraint("Symmetric", 33, 3, 37, 3, -2))
sketch1.addConstraint(Sketcher.Constraint("Symmetric", 32, 3, 38, 3, -2))
sketch1.addConstraint(Sketcher.Constraint("Symmetric", 34, 3, 43, 3, -2))
sketch1.addConstraint(Sketcher.Constraint("Symmetric", 29, 3, 44, 3, -2))
sketch1.addConstraint(Sketcher.Constraint("Symmetric", 30, 3, 45, 3, -2))
sketch1.addConstraint(Sketcher.Constraint("Symmetric", 28, 3, 46, 3, -2))
sketch1.addConstraint(Sketcher.Constraint("Symmetric", 31, 3, 47, 3, -2))
sketch1.addConstraint(Sketcher.Constraint("Symmetric", 35, 3, 54, 3, -2))
sketch1.addConstraint(Sketcher.Constraint("Symmetric", 36, 3, 55, 3, -2))
sketch1.addConstraint(Sketcher.Constraint("Symmetric", 8, 2, 11, 2, -2))
sketch1.addConstraint(Sketcher.Constraint("Symmetric", 6, 2, 13, 2, -2))
sketch1.addConstraint(Sketcher.Constraint("Symmetric", 4, 2, 15, 2, -2))
sketch1.addConstraint(Sketcher.Constraint("PointOnObject", 48, 3, -2))
sketch1.addConstraint(Sketcher.Constraint("PointOnObject", 53, 3, -2))
sketch1.addConstraint(Sketcher.Constraint("PointOnObject", 62, 3, -1))
sketch1.addConstraint(Sketcher.Constraint("Horizontal", 29, 3, 32, 3))
sketch1.addConstraint(Sketcher.Constraint("Horizontal", 86, 3, 0, 2))
sketch1.addConstraint(Sketcher.Constraint("Horizontal", 6, 2, 9, 2))
sketch1.addConstraint(Sketcher.Constraint("Horizontal", 16, 2, 58, 2))
sketch1.addConstraint(Sketcher.Constraint("Horizontal", 18, 2, 59, 2))
sketch1.addConstraint(Sketcher.Constraint("Vertical", 31, 3, 35, 3))
sketch1.addConstraint(Sketcher.Constraint("Vertical", 63, 3, 2, 2))
sketch1.addConstraint(Sketcher.Constraint("Vertical", 3, 2, 6, 2))
sketch1.addConstraint(Sketcher.Constraint("Vertical", 25, 2, 49, 2))
sketch1.addConstraint(Sketcher.Constraint("Vertical", 23, 2, 51, 2))
sketch1.addConstraint(Sketcher.Constraint("Equal", 6, 10))
sketch1.addConstraint(Sketcher.Constraint("Equal", 51, 58))
sketch1.addConstraint(Sketcher.Constraint("Equal", 78, 3))
sketch1.addConstraint(Sketcher.Constraint("Equal", 3, 7))
sketch1.addConstraint(Sketcher.Constraint("Equal", 41, 40))
sketch1.addConstraint(Sketcher.Constraint("Equal", 27, 50))
sketch1.addConstraint(Sketcher.Constraint("Diameter", 69, 21.0))
sketch1.addConstraint(Sketcher.Constraint("Diameter", 28, 3.1))
sketch1.addConstraint(Sketcher.Constraint("DistanceX", 0, 2, 0, 1, 10.0))
sketch1.addConstraint(Sketcher.Constraint("DistanceX", 8, 1, 8, 2, 95.0))
sketch1.addConstraint(Sketcher.Constraint("DistanceY", 1, 2, 1, 1, 115.0))
sketch1.addConstraint(Sketcher.Constraint("DistanceX", 39, 2, 39, 1, 42.2))
sketch1.addConstraint(Sketcher.Constraint("DistanceX", 33, 3, -1, 1, 10.0))
sketch1.addConstraint(Sketcher.Constraint("DistanceY", 33, 3, -1, 1, 125.0))
sketch1.addConstraint(Sketcher.Constraint("DistanceX", 36, 3, -1, 1, 105.0))
sketch1.addConstraint(Sketcher.Constraint("DistanceY", 36, 3, -1, 1, 10.0))
sketch1.addConstraint(Sketcher.Constraint("DistanceY", 49, 2, -1, 1, 35.0))
sketch1.addConstraint(Sketcher.Constraint("DistanceX", 58, 2, -1, 1, 35.0))
sketch1.addConstraint(Sketcher.Constraint("DistanceX", 34, 3, -1, 1, 26.1))
sketch1.addConstraint(Sketcher.Constraint("DistanceY", 53, 3, -1, 1, 17.5))
sketch1.addConstraint(Sketcher.Constraint("DistanceX", 62, 3, -1, 1, 17.5))
sketch1.addConstraint(Sketcher.Constraint("DistanceX", 39, 2, -1, 1, 21.1))
sketch1.addConstraint(Sketcher.Constraint("DistanceX", 29, 3, -1, 1, 72.735))
sketch1.addConstraint(Sketcher.Constraint("DistanceY", 31, 3, -1, 1, 92.735))
sketch1.addConstraint(Sketcher.Constraint("DistanceX", 32, 3, -1, 1, 42.735))
sketch1.addConstraint(Sketcher.Constraint("DistanceY", 34, 3, -1, 1, 75.647))
sketch1.addConstraint(Sketcher.Constraint("DistanceY", 35, 3, -1, 1, 62.735))
sketch1.addConstraint(Sketcher.Constraint("DistanceY", 48, 3, -1, 1, 49.547))
sketch1.addConstraint(Sketcher.Constraint("DistanceY", 39, 2, -1, 1, 96.747))
sketch1.addConstraint(Sketcher.Constraint("DistanceX", 28, 3, -1, 1, 93.438403))
sketch1.addConstraint(Sketcher.Constraint("DistanceY", 28, 3, -1, 1, 99.296597))
sketch1.addConstraint(Sketcher.Constraint("DistanceX", 30, 3, -1, 1, 79.296597))
sketch1.addConstraint(Sketcher.Constraint("DistanceY", 30, 3, -1, 1, 113.438403))
pad1 = doc.addObject("PartDesign::Pad", "Pad")
body.addObject(pad1)
pad1.Profile = sketch1
pad1.Length = 4

doc.recompute()
